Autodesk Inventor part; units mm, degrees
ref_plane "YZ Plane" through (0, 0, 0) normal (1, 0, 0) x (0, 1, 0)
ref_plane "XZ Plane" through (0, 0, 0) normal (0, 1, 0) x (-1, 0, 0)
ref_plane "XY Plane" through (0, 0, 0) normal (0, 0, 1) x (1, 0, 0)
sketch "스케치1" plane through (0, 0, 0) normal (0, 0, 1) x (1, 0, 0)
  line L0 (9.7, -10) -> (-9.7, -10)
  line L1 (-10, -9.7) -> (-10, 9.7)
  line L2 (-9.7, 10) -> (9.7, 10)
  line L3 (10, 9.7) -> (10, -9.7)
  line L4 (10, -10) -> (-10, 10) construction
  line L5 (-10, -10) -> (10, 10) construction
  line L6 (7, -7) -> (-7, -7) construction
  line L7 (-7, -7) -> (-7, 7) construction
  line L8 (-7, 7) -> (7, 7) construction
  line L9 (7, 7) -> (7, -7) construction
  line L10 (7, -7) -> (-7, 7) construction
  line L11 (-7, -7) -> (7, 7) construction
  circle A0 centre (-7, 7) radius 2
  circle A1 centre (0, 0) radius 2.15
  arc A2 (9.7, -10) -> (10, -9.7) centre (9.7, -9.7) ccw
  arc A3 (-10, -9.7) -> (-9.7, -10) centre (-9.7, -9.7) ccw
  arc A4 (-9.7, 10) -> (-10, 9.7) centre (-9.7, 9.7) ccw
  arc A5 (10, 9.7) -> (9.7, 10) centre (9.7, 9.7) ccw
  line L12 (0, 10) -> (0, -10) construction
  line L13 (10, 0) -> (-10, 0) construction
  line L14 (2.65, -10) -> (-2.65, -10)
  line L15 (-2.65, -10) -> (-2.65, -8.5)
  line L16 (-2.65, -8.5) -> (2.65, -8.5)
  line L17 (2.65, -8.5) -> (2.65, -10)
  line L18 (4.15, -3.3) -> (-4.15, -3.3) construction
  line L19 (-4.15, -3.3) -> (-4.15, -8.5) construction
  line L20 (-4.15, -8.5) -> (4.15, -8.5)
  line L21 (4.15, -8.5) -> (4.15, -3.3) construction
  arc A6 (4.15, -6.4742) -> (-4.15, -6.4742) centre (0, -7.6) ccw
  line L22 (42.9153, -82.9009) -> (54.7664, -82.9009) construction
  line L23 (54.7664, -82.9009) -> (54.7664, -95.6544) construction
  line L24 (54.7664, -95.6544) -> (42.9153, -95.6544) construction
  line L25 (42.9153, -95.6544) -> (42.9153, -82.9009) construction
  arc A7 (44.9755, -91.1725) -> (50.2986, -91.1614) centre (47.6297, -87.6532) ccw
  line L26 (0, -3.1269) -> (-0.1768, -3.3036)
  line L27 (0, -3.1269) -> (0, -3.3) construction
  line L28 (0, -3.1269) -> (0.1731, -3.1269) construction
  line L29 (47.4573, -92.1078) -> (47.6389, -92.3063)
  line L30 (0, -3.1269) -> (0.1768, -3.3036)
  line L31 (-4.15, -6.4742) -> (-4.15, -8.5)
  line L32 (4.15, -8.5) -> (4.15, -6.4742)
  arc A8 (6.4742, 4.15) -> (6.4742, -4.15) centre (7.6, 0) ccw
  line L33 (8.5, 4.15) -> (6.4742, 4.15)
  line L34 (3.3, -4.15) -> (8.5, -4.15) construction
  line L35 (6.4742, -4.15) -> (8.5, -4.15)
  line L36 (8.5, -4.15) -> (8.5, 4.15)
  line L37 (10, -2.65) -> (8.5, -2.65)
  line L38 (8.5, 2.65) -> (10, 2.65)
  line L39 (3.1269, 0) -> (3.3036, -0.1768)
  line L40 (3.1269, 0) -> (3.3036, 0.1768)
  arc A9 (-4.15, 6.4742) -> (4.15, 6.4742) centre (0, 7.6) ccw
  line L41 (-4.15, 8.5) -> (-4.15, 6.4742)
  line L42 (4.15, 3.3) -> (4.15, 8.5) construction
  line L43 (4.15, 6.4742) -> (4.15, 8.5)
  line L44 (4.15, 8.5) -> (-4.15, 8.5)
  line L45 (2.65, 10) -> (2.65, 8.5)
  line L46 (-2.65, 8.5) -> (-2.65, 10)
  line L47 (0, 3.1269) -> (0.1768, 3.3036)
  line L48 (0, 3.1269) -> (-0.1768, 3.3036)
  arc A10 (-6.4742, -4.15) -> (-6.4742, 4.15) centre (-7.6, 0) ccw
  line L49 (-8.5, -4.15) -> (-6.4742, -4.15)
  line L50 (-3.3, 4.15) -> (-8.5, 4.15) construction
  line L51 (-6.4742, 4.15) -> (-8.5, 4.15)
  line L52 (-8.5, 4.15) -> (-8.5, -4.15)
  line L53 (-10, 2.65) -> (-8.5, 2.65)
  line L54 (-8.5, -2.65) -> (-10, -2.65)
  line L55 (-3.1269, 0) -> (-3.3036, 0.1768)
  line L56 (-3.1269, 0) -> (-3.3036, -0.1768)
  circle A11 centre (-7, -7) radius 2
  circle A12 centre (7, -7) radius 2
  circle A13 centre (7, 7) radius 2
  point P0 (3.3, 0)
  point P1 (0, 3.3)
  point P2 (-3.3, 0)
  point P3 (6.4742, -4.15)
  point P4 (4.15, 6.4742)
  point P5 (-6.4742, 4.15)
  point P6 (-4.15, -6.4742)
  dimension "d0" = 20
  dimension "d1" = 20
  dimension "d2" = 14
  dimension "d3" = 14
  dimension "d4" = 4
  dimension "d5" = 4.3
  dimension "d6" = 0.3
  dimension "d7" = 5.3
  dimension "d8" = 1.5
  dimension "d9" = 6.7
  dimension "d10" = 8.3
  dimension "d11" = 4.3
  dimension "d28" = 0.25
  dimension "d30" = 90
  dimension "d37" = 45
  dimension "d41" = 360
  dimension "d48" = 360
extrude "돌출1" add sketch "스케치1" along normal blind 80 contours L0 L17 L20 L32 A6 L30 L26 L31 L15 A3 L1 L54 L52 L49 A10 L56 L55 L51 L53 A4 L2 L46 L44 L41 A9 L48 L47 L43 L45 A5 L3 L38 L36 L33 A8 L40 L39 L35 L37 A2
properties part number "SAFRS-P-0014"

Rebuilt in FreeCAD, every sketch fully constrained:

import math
import FreeCAD as App
import Part
import Sketcher
Q = App.Units.Quantity

doc = App.newDocument("Part")
params = doc.addObject("Spreadsheet::Sheet", "Params")
for row, (alias, value) in enumerate([
    ("sketch1_diameter", "4 mm"),
    ("sketch1_diameter2", "4.3 mm"),
    ("sketch1_radius", "0.3 mm"),
    ("sketch1_radius2", "4.3 mm"),
    ("sketch1_width", "1.5 mm"),
    ("pad1_length", "80 mm"),
], start=1):
    params.set(f"A{row}", alias)
    params.set(f"B{row}", "=" + value)
    params.setAlias(f"B{row}", alias)

body = doc.addObject("PartDesign::Body", "Body")

sketch1 = body.newObject("Sketcher::SketchObject", "Sketch")
sketch1.AttachmentSupport = (doc.getObject("XY_Plane"), [""])
sketch1.MapMode = "FlatFace"
sketch1.addGeometry([
    Part.LineSegment(App.Vector(2.65, -10, 0), App.Vector(9.7, -10, 0)),
    Part.ArcOfCircle(Part.Circle(App.Vector(9.7, -9.7, 0), App.Vector(0, 0, 1), 0.3), math.radians(-90), math.radians(0)),
    Part.LineSegment(App.Vector(10, -9.7, 0), App.Vector(10, -2.65, 0)),
    Part.LineSegment(App.Vector(10, -2.65, 0), App.Vector(8.5, -2.65, 0)),
    Part.LineSegment(App.Vector(8.5, -2.65, 0), App.Vector(8.5, -4.15, 0)),
    Part.LineSegment(App.Vector(8.5, -4.15, 0), App.Vector(6.4742, -4.15, 0)),
    Part.ArcOfCircle(Part.Circle(App.Vector(7.6, 0, 0), App.Vector(0, 0, 1), 4.299991), math.radians(-177.643566), math.radians(-105.177754)),
    Part.LineSegment(App.Vector(3.3036, -0.1768, 0), App.Vector(3.1269, 0, 0)),
    Part.LineSegment(App.Vector(3.1269, 0, 0), App.Vector(3.3036, 0.1768, 0)),
    Part.ArcOfCircle(Part.Circle(App.Vector(7.6, 0, 0), App.Vector(0, 0, 1), 4.299991), math.radians(105.177754), math.radians(177.643566)),
    Part.LineSegment(App.Vector(6.4742, 4.15, 0), App.Vector(8.5, 4.15, 0)),
    Part.LineSegment(App.Vector(8.5, 4.15, 0), App.Vector(8.5, 2.65, 0)),
    Part.LineSegment(App.Vector(8.5, 2.65, 0), App.Vector(10, 2.65, 0)),
    Part.LineSegment(App.Vector(10, 2.65, 0), App.Vector(10, 9.7, 0)),
    Part.ArcOfCircle(Part.Circle(App.Vector(9.7, 9.7, 0), App.Vector(0, 0, 1), 0.3), math.radians(0), math.radians(90)),
    Part.LineSegment(App.Vector(9.7, 10, 0), App.Vector(2.65, 10, 0)),
    Part.LineSegment(App.Vector(2.65, 10, 0), App.Vector(2.65, 8.5, 0)),
    Part.LineSegment(App.Vector(2.65, 8.5, 0), App.Vector(4.15, 8.5, 0)),
    Part.LineSegment(App.Vector(4.15, 8.5, 0), App.Vector(4.15, 6.4742, 0)),
    Part.ArcOfCircle(Part.Circle(App.Vector(0, 7.6, 0), App.Vector(0, 0, 1), 4.299991), math.radians(-87.643566), math.radians(-15.177754)),
    Part.LineSegment(App.Vector(0.1768, 3.3036, 0), App.Vector(0, 3.1269, 0)),
    Part.LineSegment(App.Vector(0, 3.1269, 0), App.Vector(-0.1768, 3.3036, 0)),
    Part.ArcOfCircle(Part.Circle(App.Vector(0, 7.6, 0), App.Vector(0, 0, 1), 4.299991), math.radians(-164.822246), math.radians(-92.356434)),
    Part.LineSegment(App.Vector(-4.15, 6.4742, 0), App.Vector(-4.15, 8.5, 0)),
    Part.LineSegment(App.Vector(-4.15, 8.5, 0), App.Vector(-2.65, 8.5, 0)),
    Part.LineSegment(App.Vector(-2.65, 8.5, 0), App.Vector(-2.65, 10, 0)),
    Part.LineSegment(App.Vector(-2.65, 10, 0), App.Vector(-9.7, 10, 0)),
    Part.ArcOfCircle(Part.Circle(App.Vector(-9.7, 9.7, 0), App.Vector(0, 0, 1), 0.3), math.radians(90), math.radians(180)),
    Part.LineSegment(App.Vector(-10, 9.7, 0), App.Vector(-10, 2.65, 0)),
    Part.LineSegment(App.Vector(-10, 2.65, 0), App.Vector(-8.5, 2.65, 0)),
    Part.LineSegment(App.Vector(-8.5, 2.65, 0), App.Vector(-8.5, 4.15, 0)),
    Part.LineSegment(App.Vector(-8.5, 4.15, 0), App.Vector(-6.4742, 4.15, 0)),
    Part.ArcOfCircle(Part.Circle(App.Vector(-7.6, 0, 0), App.Vector(0, 0, 1), 4.299991), math.radians(2.356434), math.radians(74.822246)),
    Part.LineSegment(App.Vector(-3.3036, 0.1768, 0), App.Vector(-3.1269, 0, 0)),
    Part.LineSegment(App.Vector(-3.1269, 0, 0), App.Vector(-3.3036, -0.1768, 0)),
    Part.ArcOfCircle(Part.Circle(App.Vector(-7.6, 0, 0), App.Vector(0, 0, 1), 4.299991), math.radians(-74.822246), math.radians(-2.356434)),
    Part.LineSegment(App.Vector(-6.4742, -4.15, 0), App.Vector(-8.5, -4.15, 0)),
    Part.LineSegment(App.Vector(-8.5, -4.15, 0), App.Vector(-8.5, -2.65, 0)),
    Part.LineSegment(App.Vector(-8.5, -2.65, 0), App.Vector(-10, -2.65, 0)),
    Part.LineSegment(App.Vector(-10, -2.65, 0), App.Vector(-10, -9.7, 0)),
    Part.ArcOfCircle(Part.Circle(App.Vector(-9.7, -9.7, 0), App.Vector(0, 0, 1), 0.3), math.radians(180), math.radians(270)),
    Part.LineSegment(App.Vector(-9.7, -10, 0), App.Vector(-2.65, -10, 0)),
    Part.LineSegment(App.Vector(-2.65, -10, 0), App.Vector(-2.65, -8.5, 0)),
    Part.LineSegment(App.Vector(-2.65, -8.5, 0), App.Vector(-4.15, -8.5, 0)),
    Part.LineSegment(App.Vector(-4.15, -8.5, 0), App.Vector(-4.15, -6.4742, 0)),
    Part.ArcOfCircle(Part.Circle(App.Vector(0, -7.6, 0), App.Vector(0, 0, 1), 4.299991), math.radians(92.356434), math.radians(164.822246)),
    Part.LineSegment(App.Vector(-0.1768, -3.3036, 0), App.Vector(0, -3.1269, 0)),
    Part.LineSegment(App.Vector(0, -3.1269, 0), App.Vector(0.1768, -3.3036, 0)),
    Part.ArcOfCircle(Part.Circle(App.Vector(0, -7.6, 0), App.Vector(0, 0, 1), 4.299991), math.radians(15.177754), math.radians(87.643566)),
    Part.LineSegment(App.Vector(4.15, -6.4742, 0), App.Vector(4.15, -8.5, 0)),
    Part.LineSegment(App.Vector(4.15, -8.5, 0), App.Vector(2.65, -8.5, 0)),
    Part.LineSegment(App.Vector(2.65, -8.5, 0), App.Vector(2.65, -10, 0)),
    Part.Circle(App.Vector(-7, -7, 0), App.Vector(0, 0, 1), 2),
    Part.Circle(App.Vector(7, -7, 0), App.Vector(0, 0, 1), 2),
    Part.Circle(App.Vector(-7, 7, 0), App.Vector(0, 0, 1), 2),
    Part.Circle(App.Vector(0, 0, 0), App.Vector(0, 0, 1), 2.15),
    Part.Circle(App.Vector(7, 7, 0), App.Vector(0, 0, 1), 2),
], False)
sketch1.addConstraint([
    Sketcher.Constraint("Tangent", 0, 2, 1, 1),
    Sketcher.Constraint("Tangent", 1, 2, 2, 1),
    Sketcher.Constraint("Coincident", 2, 2, 3, 1),
    Sketcher.Constraint("Coincident", 3, 2, 4, 1),
    Sketcher.Constraint("Coincident", 4, 2, 5, 1),
    Sketcher.Constraint("Coincident", 5, 2, 6, 2),
    Sketcher.Constraint("Coincident", 6, 1, 7, 1),
    Sketcher.Constraint("Coincident", 7, 2, 8, 1),
    Sketcher.Constraint("Coincident", 8, 2, 9, 2),
    Sketcher.Constraint("Coincident", 9, 1, 10, 1),
    Sketcher.Constraint("Coincident", 10, 2, 11, 1),
    Sketcher.Constraint("Coincident", 11, 2, 12, 1),
    Sketcher.Constraint("Coincident", 12, 2, 13, 1),
    Sketcher.Constraint("Tangent", 13, 2, 14, 1),
    Sketcher.Constraint("Tangent", 14, 2, 15, 1),
    Sketcher.Constraint("Coincident", 15, 2, 16, 1),
    Sketcher.Constraint("Coincident", 16, 2, 17, 1),
    Sketcher.Constraint("Coincident", 17, 2, 18, 1),
    Sketcher.Constraint("Coincident", 18, 2, 19, 2),
    Sketcher.Constraint("Coincident", 19, 1, 20, 1),
    Sketcher.Constraint("Coincident", 20, 2, 21, 1),
    Sketcher.Constraint("Coincident", 21, 2, 22, 2),
    Sketcher.Constraint("Coincident", 22, 1, 23, 1),
    Sketcher.Constraint("Coincident", 23, 2, 24, 1),
    Sketcher.Constraint("Coincident", 24, 2, 25, 1),
    Sketcher.Constraint("Coincident", 25, 2, 26, 1),
    Sketcher.Constraint("Tangent", 26, 2, 27, 1),
    Sketcher.Constraint("Tangent", 27, 2, 28, 1),
    Sketcher.Constraint("Coincident", 28, 2, 29, 1),
    Sketcher.Constraint("Coincident", 29, 2, 30, 1),
    Sketcher.Constraint("Coincident", 30, 2, 31, 1),
    Sketcher.Constraint("Coincident", 31, 2, 32, 2),
    Sketcher.Constraint("Coincident", 32, 1, 33, 1),
    Sketcher.Constraint("Coincident", 33, 2, 34, 1),
    Sketcher.Constraint("Coincident", 34, 2, 35, 2),
    Sketcher.Constraint("Coincident", 35, 1, 36, 1),
    Sketcher.Constraint("Coincident", 36, 2, 37, 1),
    Sketcher.Constraint("Coincident", 37, 2, 38, 1),
    Sketcher.Constraint("Coincident", 38, 2, 39, 1),
    Sketcher.Constraint("Tangent", 39, 2, 40, 1),
    Sketcher.Constraint("Tangent", 40, 2, 41, 1),
    Sketcher.Constraint("Coincident", 41, 2, 42, 1),
    Sketcher.Constraint("Coincident", 42, 2, 43, 1),
    Sketcher.Constraint("Coincident", 43, 2, 44, 1),
    Sketcher.Constraint("Coincident", 44, 2, 45, 2),
    Sketcher.Constraint("Coincident", 45, 1, 46, 1),
    Sketcher.Constraint("Coincident", 46, 2, 47, 1),
    Sketcher.Constraint("Coincident", 47, 2, 48, 2),
    Sketcher.Constraint("Coincident", 48, 1, 49, 1),
    Sketcher.Constraint("Coincident", 49, 2, 50, 1),
    Sketcher.Constraint("Coincident", 50, 2, 51, 1),
    Sketcher.Constraint("Coincident", 51, 2, 0, 1),
    Sketcher.Constraint("Horizontal", 0),
    Sketcher.Constraint("Vertical", 2),
    Sketcher.Constraint("Horizontal", 3),
    Sketcher.Constraint("Vertical", 4),
    Sketcher.Constraint("Horizontal", 5),
    Sketcher.Constraint("Horizontal", 10),
    Sketcher.Constraint("Vertical", 11),
    Sketcher.Constraint("Horizontal", 12),
    Sketcher.Constraint("Vertical", 13),
    Sketcher.Constraint("Horizontal", 15),
    Sketcher.Constraint("Vertical", 16),
    Sketcher.Constraint("Horizontal", 17),
    Sketcher.Constraint("Vertical", 18),
    Sketcher.Constraint("Vertical", 23),
    Sketcher.Constraint("Horizontal", 24),
    Sketcher.Constraint("Vertical", 25),
    Sketcher.Constraint("Horizontal", 26),
    Sketcher.Constraint("Vertical", 28),
    Sketcher.Constraint("Horizontal", 29),
    Sketcher.Constraint("Vertical", 30),
    Sketcher.Constraint("Horizontal", 31),
    Sketcher.Constraint("Horizontal", 36),
    Sketcher.Constraint("Vertical", 37),
    Sketcher.Constraint("Horizontal", 38),
    Sketcher.Constraint("Vertical", 39),
    Sketcher.Constraint("Horizontal", 41),
    Sketcher.Constraint("Vertical", 42),
    Sketcher.Constraint("Horizontal", 43),
    Sketcher.Constraint("Vertical", 44),
    Sketcher.Constraint("Vertical", 49),
    Sketcher.Constraint("Horizontal", 50),
    Sketcher.Constraint("Vertical", 51),
    Sketcher.Constraint("Coincident", 55, 3, -1, 1),
    Sketcher.Constraint("Coincident", 9, 3, 6, 3),
    Sketcher.Constraint("Coincident", 22, 3, 19, 3),
    Sketcher.Constraint("Coincident", 35, 3, 32, 3),
    Sketcher.Constraint("Coincident", 48, 3, 45, 3),
    Sketcher.Constraint("Equal", 6, 9),
    Sketcher.Constraint("Equal", 1, 14),
    Sketcher.Constraint("Equal", 9, 19),
    Sketcher.Constraint("Equal", 19, 22),
    Sketcher.Constraint("Equal", 14, 27),
    Sketcher.Constraint("Equal", 22, 32),
    Sketcher.Constraint("Equal", 32, 35),
    Sketcher.Constraint("Equal", 27, 40),
    Sketcher.Constraint("Equal", 35, 45),
    Sketcher.Constraint("Equal", 45, 48),
    Sketcher.Constraint("Equal", 52, 53),
    Sketcher.Constraint("Equal", 53, 54),
    Sketcher.Constraint("Equal", 54, 56),
    Sketcher.Constraint("Symmetric", 1, 3, 27, 3, -1, 1),
    Sketcher.Constraint("Symmetric", 6, 3, 32, 3, -1, 1),
    Sketcher.Constraint("Symmetric", 14, 3, 40, 3, -1, 1),
    Sketcher.Constraint("Symmetric", 19, 3, 45, 3, -1, 1),
    Sketcher.Constraint("Symmetric", 53, 3, 54, 3, -1, 1),
    Sketcher.Constraint("Symmetric", 52, 3, 56, 3, -1, 1),
    Sketcher.Constraint("Symmetric", 3, 2, 29, 2, -1, 1),
    Sketcher.Constraint("Symmetric", 7, 2, 33, 2, -1, 1),
    Sketcher.Constraint("Symmetric", 10, 2, 36, 2, -1, 1),
    Sketcher.Constraint("Symmetric", 16, 2, 42, 2, -1, 1),
    Sketcher.Constraint("Symmetric", 20, 2, 46, 2, -1, 1),
    Sketcher.Constraint("Symmetric", 23, 2, 49, 2, -1, 1),
    Sketcher.Constraint("Symmetric", 14, 3, 27, 3, -2),
    Sketcher.Constraint("Symmetric", 52, 3, 53, 3, -2),
    Sketcher.Constraint("Symmetric", 19, 1, 21, 2, -2),
    Sketcher.Constraint("Symmetric", 17, 2, 23, 2, -2),
    Sketcher.Constraint("Symmetric", 11, 2, 29, 2, -2),
    Sketcher.Constraint("Symmetric", 9, 1, 31, 2, -2),
    Sketcher.Constraint("PointOnObject", 7, 2, -1),
    Sketcher.Constraint("PointOnObject", 20, 2, -2),
    Sketcher.Constraint("Perpendicular", 7, 20),
    Sketcher.Constraint("Perpendicular", 8, 21),
    Sketcher.Constraint("Perpendicular", 20, 33),
    Sketcher.Constraint("Perpendicular", 21, 34),
    Sketcher.Constraint("Perpendicular", 33, 46),
    Sketcher.Constraint("Perpendicular", 34, 47),
    Sketcher.Constraint("Horizontal", 5, 2, 35, 1),
    Sketcher.Constraint("Horizontal", 3, 2, 37, 2),
    Sketcher.Constraint("Horizontal", 44, 2, 48, 1),
    Sketcher.Constraint("Vertical", 25, 2, 41, 2),
    Sketcher.Constraint("Vertical", 16, 2, 50, 2),
    Sketcher.Constraint("Equal", 12, 17),
    Sketcher.Constraint("Equal", 41, 2),
    Sketcher.Constraint("Equal", 50, 4),
    Sketcher.Constraint("Equal", 11, 16),
    Sketcher.Constraint("Equal", 36, 18),
    Sketcher.Constraint("Equal", 8, 20),
    Sketcher.Constraint("Diameter", 52, Q("4 mm")),
    Sketcher.Constraint("Diameter", 55, Q("4.3 mm")),
    Sketcher.Constraint("Radius", 1, Q("0.3 mm")),
    Sketcher.Constraint("Radius", 6, Q("4.3 mm")),
    Sketcher.Constraint("DistanceX", 3, 2, 3, 1, Q("1.5 mm")),
    Sketcher.Constraint("Distance", 7, Q("0.25 mm")),
    Sketcher.Constraint("DistanceX", 52, 3, -1, 1, Q("7 mm")),
    Sketcher.Constraint("DistanceY", 52, 3, -1, 1, Q("7 mm")),
    Sketcher.Constraint("DistanceY", 0, 2, -1, 1, Q("10 mm")),
    Sketcher.Constraint("DistanceX", -1, 1, 1, 2, Q("10 mm")),
    Sketcher.Constraint("DistanceX", 0, 1, 0, 2, Q("7.05 mm")),
    Sketcher.Constraint("DistanceX", -1, 1, 6, 3, Q("7.6 mm")),
    Sketcher.Constraint("DistanceX", -1, 1, 7, 2, Q("3.127 mm")),
])
sketch1.setExpression("Constraints[139]", "Params.sketch1_diameter")
sketch1.setExpression("Constraints[140]", "Params.sketch1_diameter2")
sketch1.setExpression("Constraints[141]", "Params.sketch1_radius")
sketch1.setExpression("Constraints[142]", "Params.sketch1_radius2")
sketch1.setExpression("Constraints[143]", "Params.sketch1_width")
pad1 = body.newObject("PartDesign::Pad", "Pad")
pad1.Profile = sketch1
pad1.setExpression("Length", "Params.pad1_length")

doc.recompute()
